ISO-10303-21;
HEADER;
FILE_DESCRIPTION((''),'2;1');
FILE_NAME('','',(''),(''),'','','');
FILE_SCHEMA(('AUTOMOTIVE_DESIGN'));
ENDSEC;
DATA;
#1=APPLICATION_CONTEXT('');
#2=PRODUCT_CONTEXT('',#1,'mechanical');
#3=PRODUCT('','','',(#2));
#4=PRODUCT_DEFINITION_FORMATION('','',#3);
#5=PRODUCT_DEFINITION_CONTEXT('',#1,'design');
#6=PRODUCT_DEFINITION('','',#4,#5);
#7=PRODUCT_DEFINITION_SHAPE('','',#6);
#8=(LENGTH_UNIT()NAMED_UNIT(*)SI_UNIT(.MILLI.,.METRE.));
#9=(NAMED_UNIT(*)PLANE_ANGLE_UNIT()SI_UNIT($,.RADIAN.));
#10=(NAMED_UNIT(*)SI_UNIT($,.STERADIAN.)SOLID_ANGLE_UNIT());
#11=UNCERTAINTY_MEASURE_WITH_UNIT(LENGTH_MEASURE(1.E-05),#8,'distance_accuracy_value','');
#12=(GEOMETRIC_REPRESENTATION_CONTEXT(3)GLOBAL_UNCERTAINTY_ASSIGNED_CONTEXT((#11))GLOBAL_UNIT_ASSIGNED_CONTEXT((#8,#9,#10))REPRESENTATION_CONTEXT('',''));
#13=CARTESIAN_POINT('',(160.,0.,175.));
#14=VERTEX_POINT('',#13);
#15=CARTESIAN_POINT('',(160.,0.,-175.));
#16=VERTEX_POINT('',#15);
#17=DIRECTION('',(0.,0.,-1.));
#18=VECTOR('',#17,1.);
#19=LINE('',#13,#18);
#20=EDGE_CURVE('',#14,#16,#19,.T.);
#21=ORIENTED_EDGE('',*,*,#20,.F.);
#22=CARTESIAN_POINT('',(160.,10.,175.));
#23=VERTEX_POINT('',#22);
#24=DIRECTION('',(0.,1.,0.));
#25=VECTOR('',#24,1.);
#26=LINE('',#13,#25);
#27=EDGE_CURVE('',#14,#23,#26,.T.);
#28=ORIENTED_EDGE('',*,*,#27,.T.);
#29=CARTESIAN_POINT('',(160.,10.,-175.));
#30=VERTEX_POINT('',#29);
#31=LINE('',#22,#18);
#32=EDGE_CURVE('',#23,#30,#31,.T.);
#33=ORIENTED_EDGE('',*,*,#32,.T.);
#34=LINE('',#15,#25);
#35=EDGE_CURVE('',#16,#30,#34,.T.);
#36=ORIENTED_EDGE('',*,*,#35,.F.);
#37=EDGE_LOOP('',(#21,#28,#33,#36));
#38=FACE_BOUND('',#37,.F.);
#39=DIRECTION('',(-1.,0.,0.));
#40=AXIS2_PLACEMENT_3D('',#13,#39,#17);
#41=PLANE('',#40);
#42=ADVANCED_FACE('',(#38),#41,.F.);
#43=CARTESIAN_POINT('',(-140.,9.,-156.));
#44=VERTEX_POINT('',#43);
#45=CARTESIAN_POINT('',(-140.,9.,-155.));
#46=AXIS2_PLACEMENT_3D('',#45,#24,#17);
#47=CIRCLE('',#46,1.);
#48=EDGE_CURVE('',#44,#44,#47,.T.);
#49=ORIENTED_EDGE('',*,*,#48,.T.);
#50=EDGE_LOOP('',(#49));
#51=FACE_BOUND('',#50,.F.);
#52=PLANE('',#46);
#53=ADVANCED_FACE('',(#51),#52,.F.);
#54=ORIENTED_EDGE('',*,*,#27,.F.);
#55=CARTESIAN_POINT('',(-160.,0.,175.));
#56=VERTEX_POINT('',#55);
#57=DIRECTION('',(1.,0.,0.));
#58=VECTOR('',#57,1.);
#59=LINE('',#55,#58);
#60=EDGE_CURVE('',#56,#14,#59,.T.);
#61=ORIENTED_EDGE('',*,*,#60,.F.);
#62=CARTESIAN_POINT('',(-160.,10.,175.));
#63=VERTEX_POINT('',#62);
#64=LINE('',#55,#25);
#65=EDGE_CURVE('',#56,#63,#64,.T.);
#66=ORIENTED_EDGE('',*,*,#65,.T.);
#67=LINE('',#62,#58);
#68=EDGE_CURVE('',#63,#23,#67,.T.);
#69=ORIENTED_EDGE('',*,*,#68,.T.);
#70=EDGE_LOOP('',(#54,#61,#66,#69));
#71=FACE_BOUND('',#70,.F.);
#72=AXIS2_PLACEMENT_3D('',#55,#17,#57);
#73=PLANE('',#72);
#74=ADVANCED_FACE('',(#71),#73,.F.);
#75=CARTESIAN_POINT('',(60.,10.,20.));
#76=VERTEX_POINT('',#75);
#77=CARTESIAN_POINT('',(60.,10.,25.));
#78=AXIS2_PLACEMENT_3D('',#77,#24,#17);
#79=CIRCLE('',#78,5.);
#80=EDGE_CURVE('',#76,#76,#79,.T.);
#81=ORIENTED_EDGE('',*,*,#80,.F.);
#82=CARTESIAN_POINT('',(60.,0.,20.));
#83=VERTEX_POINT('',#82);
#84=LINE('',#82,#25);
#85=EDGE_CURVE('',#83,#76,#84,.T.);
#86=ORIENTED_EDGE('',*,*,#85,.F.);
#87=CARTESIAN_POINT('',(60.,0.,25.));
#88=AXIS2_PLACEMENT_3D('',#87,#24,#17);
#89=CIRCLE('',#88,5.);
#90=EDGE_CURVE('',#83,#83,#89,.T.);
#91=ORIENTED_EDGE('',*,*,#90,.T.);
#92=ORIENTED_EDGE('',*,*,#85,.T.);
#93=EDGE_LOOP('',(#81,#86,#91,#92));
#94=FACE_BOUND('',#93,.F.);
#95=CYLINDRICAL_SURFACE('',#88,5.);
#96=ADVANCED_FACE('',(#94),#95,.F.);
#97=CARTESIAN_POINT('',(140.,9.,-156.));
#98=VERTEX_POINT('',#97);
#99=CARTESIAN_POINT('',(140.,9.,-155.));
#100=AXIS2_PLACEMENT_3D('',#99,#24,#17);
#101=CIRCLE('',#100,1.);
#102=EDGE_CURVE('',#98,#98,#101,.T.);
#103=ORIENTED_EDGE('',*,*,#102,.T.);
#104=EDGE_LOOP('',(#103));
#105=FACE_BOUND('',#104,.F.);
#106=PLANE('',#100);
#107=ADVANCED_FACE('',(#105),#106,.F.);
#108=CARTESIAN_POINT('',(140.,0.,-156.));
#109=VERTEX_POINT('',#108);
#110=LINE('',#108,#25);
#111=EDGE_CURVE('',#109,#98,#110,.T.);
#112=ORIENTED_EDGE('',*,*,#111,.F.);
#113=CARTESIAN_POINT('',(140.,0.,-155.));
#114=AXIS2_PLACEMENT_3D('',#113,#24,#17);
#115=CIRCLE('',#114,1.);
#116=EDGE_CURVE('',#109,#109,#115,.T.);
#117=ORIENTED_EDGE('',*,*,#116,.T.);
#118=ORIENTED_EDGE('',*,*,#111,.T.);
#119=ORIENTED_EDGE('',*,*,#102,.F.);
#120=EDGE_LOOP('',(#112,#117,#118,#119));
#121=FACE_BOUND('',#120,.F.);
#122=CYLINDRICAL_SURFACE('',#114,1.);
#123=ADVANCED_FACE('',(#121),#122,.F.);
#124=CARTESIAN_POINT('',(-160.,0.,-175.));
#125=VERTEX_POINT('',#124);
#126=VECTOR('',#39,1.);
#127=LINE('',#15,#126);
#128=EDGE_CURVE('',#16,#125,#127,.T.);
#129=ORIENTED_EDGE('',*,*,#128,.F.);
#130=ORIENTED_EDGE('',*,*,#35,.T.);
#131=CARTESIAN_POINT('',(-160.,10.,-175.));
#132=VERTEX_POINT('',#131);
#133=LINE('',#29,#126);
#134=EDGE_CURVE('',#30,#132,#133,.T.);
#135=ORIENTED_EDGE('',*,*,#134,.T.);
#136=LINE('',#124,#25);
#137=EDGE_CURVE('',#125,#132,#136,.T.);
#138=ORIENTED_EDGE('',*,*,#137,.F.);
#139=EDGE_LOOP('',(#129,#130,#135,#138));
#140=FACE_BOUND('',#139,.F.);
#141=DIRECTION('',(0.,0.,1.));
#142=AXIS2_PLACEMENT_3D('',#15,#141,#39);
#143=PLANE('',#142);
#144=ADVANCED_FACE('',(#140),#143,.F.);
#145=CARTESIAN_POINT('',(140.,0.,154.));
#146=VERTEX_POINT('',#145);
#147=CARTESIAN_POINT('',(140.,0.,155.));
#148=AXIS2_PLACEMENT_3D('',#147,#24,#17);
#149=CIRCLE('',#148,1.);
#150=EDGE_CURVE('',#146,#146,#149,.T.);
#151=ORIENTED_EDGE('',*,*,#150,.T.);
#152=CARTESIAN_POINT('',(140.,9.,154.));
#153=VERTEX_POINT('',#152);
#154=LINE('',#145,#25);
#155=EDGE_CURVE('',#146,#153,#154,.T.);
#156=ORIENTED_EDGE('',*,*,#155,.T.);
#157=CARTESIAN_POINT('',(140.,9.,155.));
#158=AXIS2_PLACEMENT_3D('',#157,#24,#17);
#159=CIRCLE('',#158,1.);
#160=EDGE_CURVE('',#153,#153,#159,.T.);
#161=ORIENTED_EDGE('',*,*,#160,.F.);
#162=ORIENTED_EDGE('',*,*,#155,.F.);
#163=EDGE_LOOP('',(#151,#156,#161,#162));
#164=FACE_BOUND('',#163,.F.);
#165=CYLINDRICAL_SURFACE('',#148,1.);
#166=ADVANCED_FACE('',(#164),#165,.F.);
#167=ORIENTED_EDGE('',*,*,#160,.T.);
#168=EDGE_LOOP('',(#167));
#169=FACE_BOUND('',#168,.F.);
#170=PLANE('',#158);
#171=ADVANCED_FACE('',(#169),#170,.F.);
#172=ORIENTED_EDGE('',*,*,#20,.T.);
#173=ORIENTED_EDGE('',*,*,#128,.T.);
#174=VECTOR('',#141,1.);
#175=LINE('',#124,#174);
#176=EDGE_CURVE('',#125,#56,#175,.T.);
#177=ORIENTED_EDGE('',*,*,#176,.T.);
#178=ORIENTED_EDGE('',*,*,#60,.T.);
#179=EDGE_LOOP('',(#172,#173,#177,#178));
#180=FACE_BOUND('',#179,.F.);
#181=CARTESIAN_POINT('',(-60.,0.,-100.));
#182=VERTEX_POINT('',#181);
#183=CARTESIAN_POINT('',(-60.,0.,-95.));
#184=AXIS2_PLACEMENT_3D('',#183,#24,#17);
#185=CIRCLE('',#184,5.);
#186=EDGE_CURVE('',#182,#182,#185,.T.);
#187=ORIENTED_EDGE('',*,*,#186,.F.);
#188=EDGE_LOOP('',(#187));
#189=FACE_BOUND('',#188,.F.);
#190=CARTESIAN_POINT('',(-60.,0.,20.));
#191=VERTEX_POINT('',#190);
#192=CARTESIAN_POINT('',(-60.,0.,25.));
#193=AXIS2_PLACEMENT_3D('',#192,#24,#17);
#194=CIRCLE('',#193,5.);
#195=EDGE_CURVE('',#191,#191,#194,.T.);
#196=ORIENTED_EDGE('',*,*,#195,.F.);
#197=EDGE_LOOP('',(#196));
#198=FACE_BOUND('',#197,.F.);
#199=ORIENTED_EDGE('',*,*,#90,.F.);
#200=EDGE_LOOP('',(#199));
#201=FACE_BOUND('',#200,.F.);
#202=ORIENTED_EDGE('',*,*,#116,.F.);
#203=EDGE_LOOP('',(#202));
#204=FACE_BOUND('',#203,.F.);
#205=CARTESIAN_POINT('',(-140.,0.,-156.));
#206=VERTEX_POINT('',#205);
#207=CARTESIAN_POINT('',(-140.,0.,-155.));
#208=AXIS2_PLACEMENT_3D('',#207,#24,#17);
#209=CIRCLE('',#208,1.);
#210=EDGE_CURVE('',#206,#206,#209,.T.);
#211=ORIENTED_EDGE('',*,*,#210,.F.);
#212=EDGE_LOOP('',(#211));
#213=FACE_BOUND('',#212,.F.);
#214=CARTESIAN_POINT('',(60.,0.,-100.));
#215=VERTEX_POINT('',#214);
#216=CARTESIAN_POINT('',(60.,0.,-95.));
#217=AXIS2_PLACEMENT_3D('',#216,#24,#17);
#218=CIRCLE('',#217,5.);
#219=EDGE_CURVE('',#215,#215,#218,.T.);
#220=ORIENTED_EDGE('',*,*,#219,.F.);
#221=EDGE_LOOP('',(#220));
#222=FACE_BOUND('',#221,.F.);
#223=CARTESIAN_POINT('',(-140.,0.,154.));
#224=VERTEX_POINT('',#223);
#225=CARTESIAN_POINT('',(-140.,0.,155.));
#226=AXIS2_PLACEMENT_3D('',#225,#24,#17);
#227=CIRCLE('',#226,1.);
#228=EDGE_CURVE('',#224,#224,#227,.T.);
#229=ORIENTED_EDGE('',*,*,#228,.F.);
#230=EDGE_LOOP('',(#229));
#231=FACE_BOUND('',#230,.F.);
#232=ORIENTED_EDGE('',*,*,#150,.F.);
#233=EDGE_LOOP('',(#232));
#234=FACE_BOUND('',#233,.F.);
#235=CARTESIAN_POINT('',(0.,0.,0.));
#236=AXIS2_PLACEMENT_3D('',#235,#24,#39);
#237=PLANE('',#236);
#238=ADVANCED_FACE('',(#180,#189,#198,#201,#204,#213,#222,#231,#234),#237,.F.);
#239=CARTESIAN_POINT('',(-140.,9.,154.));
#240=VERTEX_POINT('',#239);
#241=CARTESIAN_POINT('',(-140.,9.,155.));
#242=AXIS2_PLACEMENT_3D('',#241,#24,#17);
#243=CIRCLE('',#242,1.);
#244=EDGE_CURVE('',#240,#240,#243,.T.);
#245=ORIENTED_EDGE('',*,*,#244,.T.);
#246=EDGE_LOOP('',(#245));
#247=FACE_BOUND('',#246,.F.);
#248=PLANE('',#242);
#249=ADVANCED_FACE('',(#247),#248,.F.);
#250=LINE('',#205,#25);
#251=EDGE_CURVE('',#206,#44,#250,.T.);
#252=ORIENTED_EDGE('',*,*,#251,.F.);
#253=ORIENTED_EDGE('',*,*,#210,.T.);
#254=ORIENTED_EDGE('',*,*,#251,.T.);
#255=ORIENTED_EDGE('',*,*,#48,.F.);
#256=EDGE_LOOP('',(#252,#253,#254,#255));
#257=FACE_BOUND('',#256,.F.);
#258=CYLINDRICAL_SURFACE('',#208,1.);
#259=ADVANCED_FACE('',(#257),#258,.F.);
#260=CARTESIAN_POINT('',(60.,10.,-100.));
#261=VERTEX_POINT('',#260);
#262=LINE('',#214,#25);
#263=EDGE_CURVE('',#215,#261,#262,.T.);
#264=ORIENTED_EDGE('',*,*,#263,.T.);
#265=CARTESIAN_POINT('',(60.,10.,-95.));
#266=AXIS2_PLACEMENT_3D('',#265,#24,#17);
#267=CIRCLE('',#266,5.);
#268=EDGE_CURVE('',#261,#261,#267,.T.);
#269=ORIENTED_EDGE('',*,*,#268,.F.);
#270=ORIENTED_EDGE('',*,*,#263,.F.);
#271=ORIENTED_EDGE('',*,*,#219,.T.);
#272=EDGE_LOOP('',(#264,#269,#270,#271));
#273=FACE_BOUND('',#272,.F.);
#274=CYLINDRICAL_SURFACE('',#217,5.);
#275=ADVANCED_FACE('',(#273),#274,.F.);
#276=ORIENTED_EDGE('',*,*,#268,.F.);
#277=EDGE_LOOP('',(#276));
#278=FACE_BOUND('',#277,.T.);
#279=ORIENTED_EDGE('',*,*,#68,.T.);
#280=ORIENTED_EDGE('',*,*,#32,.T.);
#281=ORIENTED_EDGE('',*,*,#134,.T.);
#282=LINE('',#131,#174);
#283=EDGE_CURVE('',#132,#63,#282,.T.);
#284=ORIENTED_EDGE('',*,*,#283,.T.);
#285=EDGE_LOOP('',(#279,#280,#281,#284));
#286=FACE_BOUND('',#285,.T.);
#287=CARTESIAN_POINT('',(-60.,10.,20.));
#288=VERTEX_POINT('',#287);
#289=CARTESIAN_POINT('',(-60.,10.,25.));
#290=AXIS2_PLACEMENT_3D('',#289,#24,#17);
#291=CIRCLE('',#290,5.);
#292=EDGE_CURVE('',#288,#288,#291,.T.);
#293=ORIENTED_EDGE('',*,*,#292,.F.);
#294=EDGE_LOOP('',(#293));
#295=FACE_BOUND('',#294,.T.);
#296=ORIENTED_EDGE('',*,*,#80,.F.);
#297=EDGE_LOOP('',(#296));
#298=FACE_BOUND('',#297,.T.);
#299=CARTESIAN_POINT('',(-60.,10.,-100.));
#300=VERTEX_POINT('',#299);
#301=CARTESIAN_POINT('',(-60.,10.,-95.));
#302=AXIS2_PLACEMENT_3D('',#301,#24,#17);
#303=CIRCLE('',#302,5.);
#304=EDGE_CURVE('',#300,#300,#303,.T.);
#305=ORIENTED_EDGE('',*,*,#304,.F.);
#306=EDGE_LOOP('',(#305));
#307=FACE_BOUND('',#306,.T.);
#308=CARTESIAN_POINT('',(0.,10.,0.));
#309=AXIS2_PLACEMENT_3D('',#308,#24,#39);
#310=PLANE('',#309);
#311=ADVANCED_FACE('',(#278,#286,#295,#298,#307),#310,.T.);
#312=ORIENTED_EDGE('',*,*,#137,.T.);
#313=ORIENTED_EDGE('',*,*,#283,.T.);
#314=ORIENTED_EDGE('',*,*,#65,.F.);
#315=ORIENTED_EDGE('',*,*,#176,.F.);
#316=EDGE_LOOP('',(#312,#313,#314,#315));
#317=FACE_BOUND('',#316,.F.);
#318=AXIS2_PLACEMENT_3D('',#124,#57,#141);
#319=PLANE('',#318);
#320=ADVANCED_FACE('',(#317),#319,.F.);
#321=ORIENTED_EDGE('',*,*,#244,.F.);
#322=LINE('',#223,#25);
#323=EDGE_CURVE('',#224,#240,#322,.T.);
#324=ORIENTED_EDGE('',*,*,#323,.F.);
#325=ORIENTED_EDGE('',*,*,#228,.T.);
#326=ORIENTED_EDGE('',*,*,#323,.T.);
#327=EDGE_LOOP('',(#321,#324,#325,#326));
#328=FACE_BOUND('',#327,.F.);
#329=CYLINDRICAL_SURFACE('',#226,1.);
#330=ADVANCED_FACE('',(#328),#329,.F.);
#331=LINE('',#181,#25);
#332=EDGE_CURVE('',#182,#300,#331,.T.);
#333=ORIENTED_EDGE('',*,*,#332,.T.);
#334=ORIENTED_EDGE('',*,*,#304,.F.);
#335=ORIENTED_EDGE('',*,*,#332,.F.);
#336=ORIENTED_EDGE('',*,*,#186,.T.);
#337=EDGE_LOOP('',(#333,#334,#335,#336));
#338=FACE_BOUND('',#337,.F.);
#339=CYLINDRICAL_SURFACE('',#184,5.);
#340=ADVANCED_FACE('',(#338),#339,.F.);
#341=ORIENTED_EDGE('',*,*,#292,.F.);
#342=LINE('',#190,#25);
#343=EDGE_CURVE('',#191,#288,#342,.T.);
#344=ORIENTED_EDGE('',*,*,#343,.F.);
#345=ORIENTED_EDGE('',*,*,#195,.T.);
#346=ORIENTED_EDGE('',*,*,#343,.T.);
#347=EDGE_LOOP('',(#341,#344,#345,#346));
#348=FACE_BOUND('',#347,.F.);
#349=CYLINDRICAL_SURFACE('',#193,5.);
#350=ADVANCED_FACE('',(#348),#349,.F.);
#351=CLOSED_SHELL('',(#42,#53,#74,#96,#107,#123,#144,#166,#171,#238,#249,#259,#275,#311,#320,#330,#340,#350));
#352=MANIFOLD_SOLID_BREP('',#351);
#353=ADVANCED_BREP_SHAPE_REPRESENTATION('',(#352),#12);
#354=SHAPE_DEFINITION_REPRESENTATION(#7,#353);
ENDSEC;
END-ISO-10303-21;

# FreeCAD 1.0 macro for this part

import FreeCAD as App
import Part
import Sketcher

V = App.Vector
Q = App.Units.Quantity


def add_polygon(sketch, points):
    """Adds a closed chain of lines whose ends are joined by coincident constraints."""
    first, n = sketch.GeometryCount, len(points)
    for a, b in zip(points, points[1:] + points[:1]):
        sketch.addGeometry(Part.LineSegment(App.Vector(*a, 0), App.Vector(*b, 0)), False)
    for i in range(n):
        sketch.addConstraint(Sketcher.Constraint("Coincident", first + i, 2, first + (i + 1) % n, 1))

doc = App.newDocument("Part")
body = doc.addObject("PartDesign::Body", "Body")

# Sketch on XZ plane
sketch1 = body.newObject("Sketcher::SketchObject", "Sketch")
sketch1.AttachmentSupport = (doc.getObject("XZ_Plane"), [""])
sketch1.MapMode = "FlatFace"
add_polygon(sketch1, [(-160, -175), (-160, 175), (160, 175), (160, -175)])  # lines 0-3
sketch1.addConstraint([
    Sketcher.Constraint("Vertical", 0),
    Sketcher.Constraint("Horizontal", 1),
    Sketcher.Constraint("Vertical", 2),
    Sketcher.Constraint("Horizontal", 3),
    Sketcher.Constraint("Symmetric", 0, 2, 2, 2, -1, 1),
    Sketcher.Constraint("DistanceX", 1, 1, 1, 2, Q("320 mm")),
    Sketcher.Constraint("DistanceY", 0, 1, 0, 2, Q("350 mm")),
])
pad1 = body.newObject("PartDesign::Pad", "Pad")
pad1.Profile = sketch1
pad1.Length = 10
pad1.Reversed = True

# Sketch on XZ plane
sketch2 = body.newObject("Sketcher::SketchObject", "Sketch001")
sketch2.AttachmentSupport = (doc.getObject("XZ_Plane"), [""])
sketch2.MapMode = "FlatFace"
sketch2.addGeometry([
    Part.Circle(V(60, -95, 0), V(0, 0, 1), 5),
    Part.Circle(V(60, 25, 0), V(0, 0, 1), 5),
    Part.Circle(V(-60, 25, 0), V(0, 0, 1), 5),
    Part.Circle(V(-60, -95, 0), V(0, 0, 1), 5),
], False)
sketch2.addConstraint([
    Sketcher.Constraint("Equal", 0, 1),
    Sketcher.Constraint("Equal", 1, 2),
    Sketcher.Constraint("Equal", 2, 3),
    Sketcher.Constraint("Symmetric", 1, 3, 2, 3, -2),
    Sketcher.Constraint("Symmetric", 0, 3, 3, 3, -2),
    Sketcher.Constraint("Vertical", 0, 3, 1, 3),
    Sketcher.Constraint("Diameter", 0, Q("10 mm")),
    Sketcher.Constraint("DistanceX", -1, 1, 0, 3, Q("60 mm")),
    Sketcher.Constraint("DistanceY", 0, 3, -1, 1, Q("95 mm")),
    Sketcher.Constraint("DistanceY", -1, 1, 1, 3, Q("25 mm")),
])
doc.recompute()
hole = body.newObject("PartDesign::Hole", "Hole")
hole.Profile = sketch2
hole.ThreadType = "None"
hole.Diameter = 10
hole.DepthType = "ThroughAll"

# Sketch on XZ plane
sketch3 = body.newObject("Sketcher::SketchObject", "Sketch002")
sketch3.AttachmentSupport = (doc.getObject("XZ_Plane"), [""])
sketch3.MapMode = "FlatFace"
sketch3.addGeometry([
    Part.Circle(V(-140, 155, 0), V(0, 0, 1), 1),
    Part.Circle(V(140, 155, 0), V(0, 0, 1), 1),
    Part.Circle(V(-140, -155, 0), V(0, 0, 1), 1),
    Part.Circle(V(140, -155, 0), V(0, 0, 1), 1),
], False)
sketch3.addConstraint([
    Sketcher.Constraint("Equal", 0, 1),
    Sketcher.Constraint("Equal", 1, 2),
    Sketcher.Constraint("Equal", 2, 3),
    Sketcher.Constraint("Symmetric", 1, 3, 2, 3, -1, 1),
    Sketcher.Constraint("Symmetric", 0, 3, 3, 3, -1, 1),
    Sketcher.Constraint("Symmetric", 0, 3, 1, 3, -2),
    Sketcher.Constraint("Diameter", 0, Q("2 mm")),
    Sketcher.Constraint("DistanceX", 0, 3, -1, 1, Q("140 mm")),
    Sketcher.Constraint("DistanceY", -1, 1, 0, 3, Q("155 mm")),
])
doc.recompute()
hole2 = body.newObject("PartDesign::Hole", "Hole001")
hole2.Profile = sketch3
hole2.ThreadType = "None"
hole2.Diameter = 2
hole2.DepthType = "Dimension"
hole2.Depth = 9
hole2.DrillPoint = "Flat"

doc.recompute()
